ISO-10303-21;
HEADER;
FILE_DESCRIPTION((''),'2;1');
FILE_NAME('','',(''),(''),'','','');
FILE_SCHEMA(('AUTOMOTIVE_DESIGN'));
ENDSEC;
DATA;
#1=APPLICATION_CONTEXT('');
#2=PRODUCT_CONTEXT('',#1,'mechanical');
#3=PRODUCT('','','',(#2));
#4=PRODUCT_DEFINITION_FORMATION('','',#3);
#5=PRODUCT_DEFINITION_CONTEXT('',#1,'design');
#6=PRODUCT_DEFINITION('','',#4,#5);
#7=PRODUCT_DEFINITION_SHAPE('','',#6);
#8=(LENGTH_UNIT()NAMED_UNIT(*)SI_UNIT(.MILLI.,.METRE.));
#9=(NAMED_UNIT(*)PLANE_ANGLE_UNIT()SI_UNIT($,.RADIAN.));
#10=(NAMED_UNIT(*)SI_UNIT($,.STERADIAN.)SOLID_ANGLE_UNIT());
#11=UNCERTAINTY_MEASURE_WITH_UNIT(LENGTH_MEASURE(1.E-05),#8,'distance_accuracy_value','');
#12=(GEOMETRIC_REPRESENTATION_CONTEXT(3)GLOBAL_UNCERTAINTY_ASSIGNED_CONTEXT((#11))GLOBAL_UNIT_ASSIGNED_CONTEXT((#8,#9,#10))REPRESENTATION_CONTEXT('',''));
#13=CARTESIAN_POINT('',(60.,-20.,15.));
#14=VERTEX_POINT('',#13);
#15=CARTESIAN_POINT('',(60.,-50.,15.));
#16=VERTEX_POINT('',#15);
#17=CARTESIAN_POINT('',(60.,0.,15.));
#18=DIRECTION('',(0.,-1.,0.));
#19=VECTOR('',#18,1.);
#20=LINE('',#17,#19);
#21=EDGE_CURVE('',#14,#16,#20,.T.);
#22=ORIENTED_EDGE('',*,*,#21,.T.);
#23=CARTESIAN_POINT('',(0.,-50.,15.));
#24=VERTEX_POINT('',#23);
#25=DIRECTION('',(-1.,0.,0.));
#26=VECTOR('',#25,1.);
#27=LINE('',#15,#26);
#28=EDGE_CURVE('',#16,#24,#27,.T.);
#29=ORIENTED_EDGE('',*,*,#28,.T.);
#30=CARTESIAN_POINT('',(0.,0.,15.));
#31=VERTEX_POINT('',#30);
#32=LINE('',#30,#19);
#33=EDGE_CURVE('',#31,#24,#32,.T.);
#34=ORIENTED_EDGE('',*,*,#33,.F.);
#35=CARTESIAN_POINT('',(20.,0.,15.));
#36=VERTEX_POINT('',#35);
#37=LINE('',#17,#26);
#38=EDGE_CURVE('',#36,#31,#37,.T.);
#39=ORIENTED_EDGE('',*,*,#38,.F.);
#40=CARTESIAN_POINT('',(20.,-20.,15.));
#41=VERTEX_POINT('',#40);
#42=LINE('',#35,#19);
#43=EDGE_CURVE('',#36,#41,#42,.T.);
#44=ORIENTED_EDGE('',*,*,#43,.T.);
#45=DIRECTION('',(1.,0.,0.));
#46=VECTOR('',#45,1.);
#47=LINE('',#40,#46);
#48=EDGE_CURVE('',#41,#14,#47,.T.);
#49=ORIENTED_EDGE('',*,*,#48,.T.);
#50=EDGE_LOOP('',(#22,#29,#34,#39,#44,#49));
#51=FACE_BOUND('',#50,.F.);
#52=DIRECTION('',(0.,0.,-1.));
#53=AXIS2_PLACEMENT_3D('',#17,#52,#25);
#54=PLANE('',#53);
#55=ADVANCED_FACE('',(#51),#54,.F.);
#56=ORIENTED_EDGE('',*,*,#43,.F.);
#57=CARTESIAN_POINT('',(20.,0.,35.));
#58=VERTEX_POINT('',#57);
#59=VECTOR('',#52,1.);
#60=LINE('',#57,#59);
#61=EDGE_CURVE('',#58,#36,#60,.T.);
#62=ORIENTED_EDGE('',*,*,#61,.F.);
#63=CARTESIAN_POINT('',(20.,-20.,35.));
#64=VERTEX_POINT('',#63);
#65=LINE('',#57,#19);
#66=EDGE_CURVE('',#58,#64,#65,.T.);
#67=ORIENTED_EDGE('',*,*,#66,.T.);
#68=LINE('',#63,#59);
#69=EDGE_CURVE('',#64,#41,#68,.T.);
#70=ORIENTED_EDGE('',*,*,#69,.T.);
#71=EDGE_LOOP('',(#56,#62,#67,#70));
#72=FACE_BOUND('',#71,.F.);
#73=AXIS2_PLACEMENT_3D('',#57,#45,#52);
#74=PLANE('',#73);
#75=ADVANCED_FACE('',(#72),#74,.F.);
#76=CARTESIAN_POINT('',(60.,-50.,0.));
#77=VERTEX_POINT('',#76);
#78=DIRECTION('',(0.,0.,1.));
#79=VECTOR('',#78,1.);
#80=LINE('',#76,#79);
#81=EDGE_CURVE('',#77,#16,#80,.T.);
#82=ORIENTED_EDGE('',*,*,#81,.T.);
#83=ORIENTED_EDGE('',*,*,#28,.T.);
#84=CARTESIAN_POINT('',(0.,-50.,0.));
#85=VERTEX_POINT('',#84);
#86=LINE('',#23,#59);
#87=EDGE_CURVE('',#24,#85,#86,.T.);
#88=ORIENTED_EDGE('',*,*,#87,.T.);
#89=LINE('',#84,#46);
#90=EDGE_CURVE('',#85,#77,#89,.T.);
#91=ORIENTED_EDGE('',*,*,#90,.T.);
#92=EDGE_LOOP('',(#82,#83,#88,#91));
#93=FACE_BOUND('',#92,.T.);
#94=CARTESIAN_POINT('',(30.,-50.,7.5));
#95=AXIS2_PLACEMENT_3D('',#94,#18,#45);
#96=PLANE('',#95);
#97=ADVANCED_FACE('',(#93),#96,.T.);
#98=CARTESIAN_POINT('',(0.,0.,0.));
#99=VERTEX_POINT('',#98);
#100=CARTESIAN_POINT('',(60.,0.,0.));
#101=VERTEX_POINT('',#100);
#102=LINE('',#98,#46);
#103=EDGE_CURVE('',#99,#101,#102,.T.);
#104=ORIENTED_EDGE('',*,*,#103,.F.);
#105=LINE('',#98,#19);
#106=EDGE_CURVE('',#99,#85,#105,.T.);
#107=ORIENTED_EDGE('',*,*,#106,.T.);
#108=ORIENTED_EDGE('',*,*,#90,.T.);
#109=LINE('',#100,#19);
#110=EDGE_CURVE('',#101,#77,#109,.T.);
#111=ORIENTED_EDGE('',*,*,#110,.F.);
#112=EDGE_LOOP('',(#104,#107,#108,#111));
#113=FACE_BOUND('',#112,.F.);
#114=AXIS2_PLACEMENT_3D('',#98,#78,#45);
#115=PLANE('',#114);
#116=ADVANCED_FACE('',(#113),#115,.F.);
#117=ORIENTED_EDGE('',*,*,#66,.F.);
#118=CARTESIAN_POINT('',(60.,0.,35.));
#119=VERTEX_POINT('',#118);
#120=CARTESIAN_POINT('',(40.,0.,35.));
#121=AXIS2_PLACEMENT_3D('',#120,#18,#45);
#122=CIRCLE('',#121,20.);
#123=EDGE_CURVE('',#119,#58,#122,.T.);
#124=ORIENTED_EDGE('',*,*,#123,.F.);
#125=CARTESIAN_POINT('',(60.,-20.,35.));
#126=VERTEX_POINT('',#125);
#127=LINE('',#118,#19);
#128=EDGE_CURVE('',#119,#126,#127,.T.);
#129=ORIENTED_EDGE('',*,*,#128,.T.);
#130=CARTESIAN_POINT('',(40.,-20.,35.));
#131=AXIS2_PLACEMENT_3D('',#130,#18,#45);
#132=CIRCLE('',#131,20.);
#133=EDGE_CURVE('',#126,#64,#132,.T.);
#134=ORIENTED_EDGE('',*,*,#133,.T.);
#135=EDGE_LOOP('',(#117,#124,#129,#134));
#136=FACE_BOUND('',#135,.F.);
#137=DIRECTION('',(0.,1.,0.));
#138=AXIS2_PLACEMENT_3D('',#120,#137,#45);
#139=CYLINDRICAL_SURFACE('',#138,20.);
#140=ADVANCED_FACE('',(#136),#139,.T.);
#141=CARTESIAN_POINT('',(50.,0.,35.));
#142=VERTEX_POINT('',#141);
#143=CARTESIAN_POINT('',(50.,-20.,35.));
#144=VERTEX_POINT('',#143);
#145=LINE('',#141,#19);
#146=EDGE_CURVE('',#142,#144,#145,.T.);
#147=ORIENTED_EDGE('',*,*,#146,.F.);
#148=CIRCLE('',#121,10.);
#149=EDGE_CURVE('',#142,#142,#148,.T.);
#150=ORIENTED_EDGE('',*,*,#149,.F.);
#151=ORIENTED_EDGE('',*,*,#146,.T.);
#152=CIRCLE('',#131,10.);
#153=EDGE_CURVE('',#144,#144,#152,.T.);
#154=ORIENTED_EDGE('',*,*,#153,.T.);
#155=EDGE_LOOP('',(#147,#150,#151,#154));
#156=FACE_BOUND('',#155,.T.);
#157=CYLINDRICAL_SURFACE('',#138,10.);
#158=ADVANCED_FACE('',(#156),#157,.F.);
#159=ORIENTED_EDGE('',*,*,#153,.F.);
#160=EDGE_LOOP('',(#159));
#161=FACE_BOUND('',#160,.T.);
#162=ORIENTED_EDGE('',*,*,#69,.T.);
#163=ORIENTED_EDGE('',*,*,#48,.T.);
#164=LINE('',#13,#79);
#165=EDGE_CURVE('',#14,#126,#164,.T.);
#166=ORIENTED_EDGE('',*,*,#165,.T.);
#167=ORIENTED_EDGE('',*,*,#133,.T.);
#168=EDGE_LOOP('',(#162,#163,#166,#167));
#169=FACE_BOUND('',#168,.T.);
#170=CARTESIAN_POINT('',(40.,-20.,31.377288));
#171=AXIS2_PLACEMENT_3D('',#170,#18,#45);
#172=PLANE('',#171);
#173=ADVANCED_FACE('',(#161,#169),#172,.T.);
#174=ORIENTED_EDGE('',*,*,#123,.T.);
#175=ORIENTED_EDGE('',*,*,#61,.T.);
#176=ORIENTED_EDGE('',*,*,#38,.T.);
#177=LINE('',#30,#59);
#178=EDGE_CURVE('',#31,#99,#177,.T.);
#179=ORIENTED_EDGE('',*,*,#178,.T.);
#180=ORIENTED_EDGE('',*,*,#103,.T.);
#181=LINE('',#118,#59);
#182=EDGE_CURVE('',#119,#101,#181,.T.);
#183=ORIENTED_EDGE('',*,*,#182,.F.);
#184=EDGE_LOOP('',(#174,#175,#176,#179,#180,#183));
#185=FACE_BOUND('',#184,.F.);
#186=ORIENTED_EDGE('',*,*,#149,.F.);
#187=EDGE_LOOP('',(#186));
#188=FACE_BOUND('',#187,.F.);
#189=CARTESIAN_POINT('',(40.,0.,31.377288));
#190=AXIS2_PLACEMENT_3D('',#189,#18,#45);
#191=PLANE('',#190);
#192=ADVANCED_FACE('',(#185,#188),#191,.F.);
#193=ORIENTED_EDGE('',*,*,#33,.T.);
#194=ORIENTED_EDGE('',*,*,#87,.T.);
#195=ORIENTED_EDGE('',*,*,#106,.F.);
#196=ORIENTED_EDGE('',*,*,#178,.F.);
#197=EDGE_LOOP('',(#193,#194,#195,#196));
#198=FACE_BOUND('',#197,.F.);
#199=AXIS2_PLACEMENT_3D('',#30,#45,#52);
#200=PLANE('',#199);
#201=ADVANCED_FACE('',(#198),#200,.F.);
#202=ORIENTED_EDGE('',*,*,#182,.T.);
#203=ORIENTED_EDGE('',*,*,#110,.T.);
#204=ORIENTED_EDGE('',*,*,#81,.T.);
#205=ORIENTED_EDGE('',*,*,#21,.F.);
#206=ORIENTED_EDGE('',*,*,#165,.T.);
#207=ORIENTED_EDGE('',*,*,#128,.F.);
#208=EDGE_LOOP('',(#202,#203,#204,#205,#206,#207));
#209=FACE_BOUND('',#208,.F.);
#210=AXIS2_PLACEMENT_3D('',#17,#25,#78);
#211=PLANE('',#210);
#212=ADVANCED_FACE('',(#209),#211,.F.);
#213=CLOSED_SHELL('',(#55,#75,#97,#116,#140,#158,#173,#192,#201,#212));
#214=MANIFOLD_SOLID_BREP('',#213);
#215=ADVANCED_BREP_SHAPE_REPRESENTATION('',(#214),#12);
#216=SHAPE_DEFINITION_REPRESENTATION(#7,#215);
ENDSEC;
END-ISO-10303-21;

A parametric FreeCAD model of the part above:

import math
import FreeCAD as App
import Part
import Sketcher

V = App.Vector
Q = App.Units.Quantity

doc = App.newDocument("Part")
body = doc.addObject("PartDesign::Body", "Body")

sketch1 = body.newObject("Sketcher::SketchObject", "Sketch")
sketch1.AttachmentSupport = (doc.getObject("XZ_Plane"), [""])
sketch1.MapMode = "FlatFace"
sketch1.addGeometry([
    Part.LineSegment(V(0, 15, 0), V(0, 0, 0)),
    Part.LineSegment(V(0, 0, 0), V(60, 0, 0)),
    Part.LineSegment(V(60, 0, 0), V(60, 15, 0)),
    Part.LineSegment(V(60, 15, 0), V(0, 15, 0)),
], False)
sketch1.addConstraint([
    Sketcher.Constraint("Coincident", 0, 2, 1, 1),
    Sketcher.Constraint("Coincident", 1, 2, 2, 1),
    Sketcher.Constraint("Coincident", 2, 2, 3, 1),
    Sketcher.Constraint("Coincident", 3, 2, 0, 1),
    Sketcher.Constraint("Vertical", 0),
    Sketcher.Constraint("Horizontal", 1),
    Sketcher.Constraint("Vertical", 2),
    Sketcher.Constraint("Horizontal", 3),
    Sketcher.Constraint("Coincident", 0, 2, -1, 1),
    Sketcher.Constraint("DistanceX", 1, 1, 1, 2, Q("60 mm")),
    Sketcher.Constraint("DistanceY", 0, 2, 0, 1, Q("15 mm")),
])
pad1 = body.newObject("PartDesign::Pad", "Pad")
pad1.Profile = sketch1
pad1.Length = 50

sketch2 = body.newObject("Sketcher::SketchObject", "Sketch001")
sketch2.AttachmentSupport = (doc.getObject("XZ_Plane"), [""])
sketch2.MapMode = "FlatFace"
sketch2.addGeometry([
    Part.LineSegment(V(20, 15, 0), V(60, 15, 0)),
    Part.LineSegment(V(60, 15, 0), V(60, 35, 0)),
    Part.ArcOfCircle(Part.Circle(V(40, 35, 0), V(0, 0, 1), 20), math.radians(0), math.radians(180)),
    Part.LineSegment(V(20, 35, 0), V(20, 15, 0)),
    Part.Circle(V(40, 35, 0), V(0, 0, 1), 10),
], False)
sketch2.addConstraint([
    Sketcher.Constraint("Coincident", 0, 2, 1, 1),
    Sketcher.Constraint("Tangent", 1, 2, 2, 1),
    Sketcher.Constraint("Tangent", 2, 2, 3, 1),
    Sketcher.Constraint("Coincident", 3, 2, 0, 1),
    Sketcher.Constraint("Horizontal", 0),
    Sketcher.Constraint("Vertical", 1),
    Sketcher.Constraint("Vertical", 3),
    Sketcher.Constraint("Coincident", 4, 3, 2, 3),
    Sketcher.Constraint("Diameter", 4, Q("20 mm")),
    Sketcher.Constraint("Radius", 2, Q("20 mm")),
    Sketcher.Constraint("DistanceY", 1, 1, 1, 2, Q("20 mm")),
    Sketcher.Constraint("DistanceX", -1, 1, 2, 3, Q("40 mm")),
    Sketcher.Constraint("DistanceY", -1, 1, 2, 3, Q("35 mm")),
])
pad2 = body.newObject("PartDesign::Pad", "Pad001")
pad2.Profile = sketch2
pad2.Length = 20

doc.recompute()
